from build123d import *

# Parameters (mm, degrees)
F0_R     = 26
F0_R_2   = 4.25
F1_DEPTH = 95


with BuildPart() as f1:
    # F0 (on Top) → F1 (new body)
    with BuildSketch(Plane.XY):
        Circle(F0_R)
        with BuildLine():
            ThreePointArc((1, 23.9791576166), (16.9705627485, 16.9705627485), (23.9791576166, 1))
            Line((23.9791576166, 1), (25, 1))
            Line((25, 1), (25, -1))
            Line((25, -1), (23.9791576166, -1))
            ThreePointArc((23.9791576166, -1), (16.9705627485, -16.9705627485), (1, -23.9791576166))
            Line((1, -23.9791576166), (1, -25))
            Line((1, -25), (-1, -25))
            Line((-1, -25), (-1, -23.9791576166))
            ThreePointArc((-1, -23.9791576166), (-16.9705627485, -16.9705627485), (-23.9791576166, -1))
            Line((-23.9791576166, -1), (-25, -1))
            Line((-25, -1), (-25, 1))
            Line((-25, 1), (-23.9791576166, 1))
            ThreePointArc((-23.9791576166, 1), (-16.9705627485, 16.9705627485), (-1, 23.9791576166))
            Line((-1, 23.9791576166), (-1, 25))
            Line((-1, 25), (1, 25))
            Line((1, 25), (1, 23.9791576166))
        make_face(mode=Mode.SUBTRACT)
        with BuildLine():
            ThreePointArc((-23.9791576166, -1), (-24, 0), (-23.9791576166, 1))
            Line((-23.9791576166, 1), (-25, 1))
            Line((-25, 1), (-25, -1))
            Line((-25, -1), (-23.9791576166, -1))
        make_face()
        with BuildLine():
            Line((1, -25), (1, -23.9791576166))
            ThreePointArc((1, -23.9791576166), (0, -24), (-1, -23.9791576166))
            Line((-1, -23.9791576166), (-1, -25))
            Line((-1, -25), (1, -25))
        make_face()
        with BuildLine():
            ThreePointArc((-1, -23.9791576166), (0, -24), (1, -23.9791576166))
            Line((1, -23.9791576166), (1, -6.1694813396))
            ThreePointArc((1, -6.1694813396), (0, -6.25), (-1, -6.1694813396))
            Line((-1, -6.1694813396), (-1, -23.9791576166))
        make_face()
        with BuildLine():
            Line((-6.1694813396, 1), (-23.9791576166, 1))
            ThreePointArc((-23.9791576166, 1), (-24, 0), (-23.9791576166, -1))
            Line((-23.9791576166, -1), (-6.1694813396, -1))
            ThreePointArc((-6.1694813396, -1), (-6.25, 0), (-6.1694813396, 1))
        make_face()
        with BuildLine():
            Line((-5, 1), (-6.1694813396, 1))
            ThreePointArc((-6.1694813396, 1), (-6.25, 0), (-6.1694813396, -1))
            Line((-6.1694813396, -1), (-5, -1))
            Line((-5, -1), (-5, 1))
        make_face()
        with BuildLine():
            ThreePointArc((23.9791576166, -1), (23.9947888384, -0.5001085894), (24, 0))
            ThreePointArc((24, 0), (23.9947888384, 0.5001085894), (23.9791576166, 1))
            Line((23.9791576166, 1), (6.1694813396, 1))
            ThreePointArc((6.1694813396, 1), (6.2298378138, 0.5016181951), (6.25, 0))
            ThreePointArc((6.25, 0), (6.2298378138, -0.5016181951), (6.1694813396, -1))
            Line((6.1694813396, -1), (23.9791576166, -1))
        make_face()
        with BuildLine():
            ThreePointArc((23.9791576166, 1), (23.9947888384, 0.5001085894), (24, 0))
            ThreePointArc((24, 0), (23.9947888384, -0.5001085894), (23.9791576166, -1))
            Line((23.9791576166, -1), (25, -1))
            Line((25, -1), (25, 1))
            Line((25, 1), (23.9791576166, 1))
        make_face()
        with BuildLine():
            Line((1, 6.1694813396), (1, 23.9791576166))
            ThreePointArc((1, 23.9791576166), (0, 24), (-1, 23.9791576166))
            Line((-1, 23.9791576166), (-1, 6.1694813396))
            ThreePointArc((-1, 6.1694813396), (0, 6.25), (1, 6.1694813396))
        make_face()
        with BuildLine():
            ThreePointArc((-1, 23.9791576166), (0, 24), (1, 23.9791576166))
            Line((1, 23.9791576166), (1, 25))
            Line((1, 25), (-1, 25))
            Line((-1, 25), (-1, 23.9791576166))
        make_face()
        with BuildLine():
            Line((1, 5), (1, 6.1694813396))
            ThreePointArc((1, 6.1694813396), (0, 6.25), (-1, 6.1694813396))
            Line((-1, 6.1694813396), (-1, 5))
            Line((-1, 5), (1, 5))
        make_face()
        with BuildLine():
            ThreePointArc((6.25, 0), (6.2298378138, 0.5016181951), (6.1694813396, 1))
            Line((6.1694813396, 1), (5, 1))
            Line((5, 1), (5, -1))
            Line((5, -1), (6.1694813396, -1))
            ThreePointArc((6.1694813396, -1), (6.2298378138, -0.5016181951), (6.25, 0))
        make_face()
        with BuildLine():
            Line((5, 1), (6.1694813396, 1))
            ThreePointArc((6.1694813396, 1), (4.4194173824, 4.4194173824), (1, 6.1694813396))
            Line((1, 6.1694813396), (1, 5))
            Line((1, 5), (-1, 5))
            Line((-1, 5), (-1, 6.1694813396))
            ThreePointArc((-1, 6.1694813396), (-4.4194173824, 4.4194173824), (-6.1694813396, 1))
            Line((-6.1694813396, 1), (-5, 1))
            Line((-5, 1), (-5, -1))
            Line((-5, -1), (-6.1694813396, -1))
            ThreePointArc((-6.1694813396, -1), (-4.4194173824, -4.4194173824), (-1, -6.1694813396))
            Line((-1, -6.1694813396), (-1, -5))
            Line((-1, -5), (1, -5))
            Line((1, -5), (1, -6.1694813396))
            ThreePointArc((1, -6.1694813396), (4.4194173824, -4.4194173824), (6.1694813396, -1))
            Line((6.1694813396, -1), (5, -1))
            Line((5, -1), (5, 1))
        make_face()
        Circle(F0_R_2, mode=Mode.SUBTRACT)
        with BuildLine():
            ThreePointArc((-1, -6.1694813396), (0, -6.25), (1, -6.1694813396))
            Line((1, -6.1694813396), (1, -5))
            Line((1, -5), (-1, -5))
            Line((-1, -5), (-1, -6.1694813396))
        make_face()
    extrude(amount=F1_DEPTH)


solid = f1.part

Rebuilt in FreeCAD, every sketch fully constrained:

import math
import FreeCAD as App
import Part
import Sketcher

V = App.Vector

doc = App.newDocument("Part")
params = doc.addObject("Spreadsheet::Sheet", "Params")
for row, (alias, value) in enumerate([
    ("sketch1_diameter", "52 mm"),
    ("sketch1_radius", "24 mm"),
    ("sketch1_diameter2", "8.5 mm"),
    ("sketch1_radius2", "6.25 mm"),
    ("pad1_length", "95 mm"),
], start=1):
    params.set(f"A{row}", alias)
    params.set(f"B{row}", "=" + value)
    params.setAlias(f"B{row}", alias)

body = doc.addObject("PartDesign::Body", "Body")

sketch1 = doc.addObject("Sketcher::SketchObject", "Sketch")
body.addObject(sketch1)
sketch1.AttachmentSupport = (doc.XY_Plane, [""])
sketch1.MapMode = "FlatFace"
sketch1.addGeometry([
    Part.Circle(V(0, 0, 0), V(0, 0, 1), 26),
    Part.LineSegment(V(-24, -1, 0), V(-6.2, -1, 0)),
    Part.ArcOfCircle(Part.Circle(V(0, 0, 0), V(0, 0, 1), 6.2), math.radians(-171), math.radians(-99)),
    Part.LineSegment(V(-1, -6.2, 0), V(-1, -24, 0)),
    Part.ArcOfCircle(Part.Circle(V(0, 0, 0), V(0, 0, 1), 24), math.radians(-178), math.radians(-92)),
    Part.LineSegment(V(1, -24, 0), V(1, -6.2, 0)),
    Part.ArcOfCircle(Part.Circle(V(0, 0, 0), V(0, 0, 1), 6.2), math.radians(-81), math.radians(-9)),
    Part.LineSegment(V(6.2, -1, 0), V(24, -1, 0)),
    Part.ArcOfCircle(Part.Circle(V(0, 0, 0), V(0, 0, 1), 24), math.radians(-88), math.radians(-2)),
    Part.LineSegment(V(-6.2, 1, 0), V(-24, 1, 0)),
    Part.ArcOfCircle(Part.Circle(V(0, 0, 0), V(0, 0, 1), 24), math.radians(92), math.radians(178)),
    Part.LineSegment(V(-1, 24, 0), V(-1, 6.2, 0)),
    Part.ArcOfCircle(Part.Circle(V(0, 0, 0), V(0, 0, 1), 6.2), math.radians(99), math.radians(171)),
    Part.Circle(V(0, 0, 0), V(0, 0, 1), 4.2),
    Part.ArcOfCircle(Part.Circle(V(0, 0, 0), V(0, 0, 1), 24), math.radians(2), math.radians(88)),
    Part.LineSegment(V(24, 1, 0), V(6.2, 1, 0)),
    Part.ArcOfCircle(Part.Circle(V(0, 0, 0), V(0, 0, 1), 6.2), math.radians(9), math.radians(81)),
    Part.LineSegment(V(1, 6.2, 0), V(1, 24, 0)),
], False)
sketch1.addConstraint([
    Sketcher.Constraint("Coincident", 1, 2, 2, 1),
    Sketcher.Constraint("Coincident", 2, 2, 3, 1),
    Sketcher.Constraint("Coincident", 3, 2, 4, 2),
    Sketcher.Constraint("Coincident", 4, 1, 1, 1),
    Sketcher.Constraint("Coincident", 5, 2, 6, 1),
    Sketcher.Constraint("Coincident", 6, 2, 7, 1),
    Sketcher.Constraint("Coincident", 7, 2, 8, 2),
    Sketcher.Constraint("Coincident", 8, 1, 5, 1),
    Sketcher.Constraint("Coincident", 9, 2, 10, 2),
    Sketcher.Constraint("Coincident", 10, 1, 11, 1),
    Sketcher.Constraint("Coincident", 11, 2, 12, 1),
    Sketcher.Constraint("Coincident", 12, 2, 9, 1),
    Sketcher.Constraint("Coincident", 14, 1, 15, 1),
    Sketcher.Constraint("Coincident", 15, 2, 16, 1),
    Sketcher.Constraint("Coincident", 16, 2, 17, 1),
    Sketcher.Constraint("Coincident", 17, 2, 14, 2),
    Sketcher.Constraint("Horizontal", 1),
    Sketcher.Constraint("Vertical", 3),
    Sketcher.Constraint("Vertical", 5),
    Sketcher.Constraint("Horizontal", 7),
    Sketcher.Constraint("Horizontal", 9),
    Sketcher.Constraint("Vertical", 11),
    Sketcher.Constraint("Horizontal", 15),
    Sketcher.Constraint("Vertical", 17),
    Sketcher.Constraint("Coincident", 0, 3, -1, 1),
    Sketcher.Constraint("Coincident", 2, 3, -1, 1),
    Sketcher.Constraint("Coincident", 4, 3, -1, 1),
    Sketcher.Constraint("Coincident", 6, 3, -1, 1),
    Sketcher.Constraint("Coincident", 8, 3, -1, 1),
    Sketcher.Constraint("Coincident", 10, 3, -1, 1),
    Sketcher.Constraint("Coincident", 12, 3, -1, 1),
    Sketcher.Constraint("Coincident", 13, 3, -1, 1),
    Sketcher.Constraint("Coincident", 14, 3, -1, 1),
    Sketcher.Constraint("Coincident", 16, 3, -1, 1),
    Sketcher.Constraint("Equal", 2, 6),
    Sketcher.Constraint("Equal", 4, 8),
    Sketcher.Constraint("Equal", 8, 10),
    Sketcher.Constraint("Equal", 6, 12),
    Sketcher.Constraint("Equal", 10, 14),
    Sketcher.Constraint("Equal", 12, 16),
    Sketcher.Constraint("Horizontal", 2, 2, 5, 2),
    Sketcher.Constraint("Horizontal", 4, 1, 6, 2),
    Sketcher.Constraint("Horizontal", 12, 2, 14, 1),
    Sketcher.Constraint("Horizontal", 11, 2, 16, 2),
    Sketcher.Constraint("Vertical", 4, 1, 9, 2),
    Sketcher.Constraint("Vertical", 3, 2, 10, 1),
    Sketcher.Constraint("Equal", 15, 3),
    Sketcher.Constraint("Diameter", 0, 52.0),
    Sketcher.Constraint("Radius", 4, 24.0),
    Sketcher.Constraint("Diameter", 13, 8.5),
    Sketcher.Constraint("Radius", 2, 6.25),
    Sketcher.Constraint("DistanceY", 1, 2, -1, 1, 1.0),
])
sketch1.setExpression("Constraints[47]", "Params.sketch1_diameter")
sketch1.setExpression("Constraints[48]", "Params.sketch1_radius")
sketch1.setExpression("Constraints[49]", "Params.sketch1_diameter2")
sketch1.setExpression("Constraints[50]", "Params.sketch1_radius2")
pad1 = doc.addObject("PartDesign::Pad", "Pad")
body.addObject(pad1)
pad1.Profile = sketch1
pad1.setExpression("Length", "Params.pad1_length")

doc.recompute()
